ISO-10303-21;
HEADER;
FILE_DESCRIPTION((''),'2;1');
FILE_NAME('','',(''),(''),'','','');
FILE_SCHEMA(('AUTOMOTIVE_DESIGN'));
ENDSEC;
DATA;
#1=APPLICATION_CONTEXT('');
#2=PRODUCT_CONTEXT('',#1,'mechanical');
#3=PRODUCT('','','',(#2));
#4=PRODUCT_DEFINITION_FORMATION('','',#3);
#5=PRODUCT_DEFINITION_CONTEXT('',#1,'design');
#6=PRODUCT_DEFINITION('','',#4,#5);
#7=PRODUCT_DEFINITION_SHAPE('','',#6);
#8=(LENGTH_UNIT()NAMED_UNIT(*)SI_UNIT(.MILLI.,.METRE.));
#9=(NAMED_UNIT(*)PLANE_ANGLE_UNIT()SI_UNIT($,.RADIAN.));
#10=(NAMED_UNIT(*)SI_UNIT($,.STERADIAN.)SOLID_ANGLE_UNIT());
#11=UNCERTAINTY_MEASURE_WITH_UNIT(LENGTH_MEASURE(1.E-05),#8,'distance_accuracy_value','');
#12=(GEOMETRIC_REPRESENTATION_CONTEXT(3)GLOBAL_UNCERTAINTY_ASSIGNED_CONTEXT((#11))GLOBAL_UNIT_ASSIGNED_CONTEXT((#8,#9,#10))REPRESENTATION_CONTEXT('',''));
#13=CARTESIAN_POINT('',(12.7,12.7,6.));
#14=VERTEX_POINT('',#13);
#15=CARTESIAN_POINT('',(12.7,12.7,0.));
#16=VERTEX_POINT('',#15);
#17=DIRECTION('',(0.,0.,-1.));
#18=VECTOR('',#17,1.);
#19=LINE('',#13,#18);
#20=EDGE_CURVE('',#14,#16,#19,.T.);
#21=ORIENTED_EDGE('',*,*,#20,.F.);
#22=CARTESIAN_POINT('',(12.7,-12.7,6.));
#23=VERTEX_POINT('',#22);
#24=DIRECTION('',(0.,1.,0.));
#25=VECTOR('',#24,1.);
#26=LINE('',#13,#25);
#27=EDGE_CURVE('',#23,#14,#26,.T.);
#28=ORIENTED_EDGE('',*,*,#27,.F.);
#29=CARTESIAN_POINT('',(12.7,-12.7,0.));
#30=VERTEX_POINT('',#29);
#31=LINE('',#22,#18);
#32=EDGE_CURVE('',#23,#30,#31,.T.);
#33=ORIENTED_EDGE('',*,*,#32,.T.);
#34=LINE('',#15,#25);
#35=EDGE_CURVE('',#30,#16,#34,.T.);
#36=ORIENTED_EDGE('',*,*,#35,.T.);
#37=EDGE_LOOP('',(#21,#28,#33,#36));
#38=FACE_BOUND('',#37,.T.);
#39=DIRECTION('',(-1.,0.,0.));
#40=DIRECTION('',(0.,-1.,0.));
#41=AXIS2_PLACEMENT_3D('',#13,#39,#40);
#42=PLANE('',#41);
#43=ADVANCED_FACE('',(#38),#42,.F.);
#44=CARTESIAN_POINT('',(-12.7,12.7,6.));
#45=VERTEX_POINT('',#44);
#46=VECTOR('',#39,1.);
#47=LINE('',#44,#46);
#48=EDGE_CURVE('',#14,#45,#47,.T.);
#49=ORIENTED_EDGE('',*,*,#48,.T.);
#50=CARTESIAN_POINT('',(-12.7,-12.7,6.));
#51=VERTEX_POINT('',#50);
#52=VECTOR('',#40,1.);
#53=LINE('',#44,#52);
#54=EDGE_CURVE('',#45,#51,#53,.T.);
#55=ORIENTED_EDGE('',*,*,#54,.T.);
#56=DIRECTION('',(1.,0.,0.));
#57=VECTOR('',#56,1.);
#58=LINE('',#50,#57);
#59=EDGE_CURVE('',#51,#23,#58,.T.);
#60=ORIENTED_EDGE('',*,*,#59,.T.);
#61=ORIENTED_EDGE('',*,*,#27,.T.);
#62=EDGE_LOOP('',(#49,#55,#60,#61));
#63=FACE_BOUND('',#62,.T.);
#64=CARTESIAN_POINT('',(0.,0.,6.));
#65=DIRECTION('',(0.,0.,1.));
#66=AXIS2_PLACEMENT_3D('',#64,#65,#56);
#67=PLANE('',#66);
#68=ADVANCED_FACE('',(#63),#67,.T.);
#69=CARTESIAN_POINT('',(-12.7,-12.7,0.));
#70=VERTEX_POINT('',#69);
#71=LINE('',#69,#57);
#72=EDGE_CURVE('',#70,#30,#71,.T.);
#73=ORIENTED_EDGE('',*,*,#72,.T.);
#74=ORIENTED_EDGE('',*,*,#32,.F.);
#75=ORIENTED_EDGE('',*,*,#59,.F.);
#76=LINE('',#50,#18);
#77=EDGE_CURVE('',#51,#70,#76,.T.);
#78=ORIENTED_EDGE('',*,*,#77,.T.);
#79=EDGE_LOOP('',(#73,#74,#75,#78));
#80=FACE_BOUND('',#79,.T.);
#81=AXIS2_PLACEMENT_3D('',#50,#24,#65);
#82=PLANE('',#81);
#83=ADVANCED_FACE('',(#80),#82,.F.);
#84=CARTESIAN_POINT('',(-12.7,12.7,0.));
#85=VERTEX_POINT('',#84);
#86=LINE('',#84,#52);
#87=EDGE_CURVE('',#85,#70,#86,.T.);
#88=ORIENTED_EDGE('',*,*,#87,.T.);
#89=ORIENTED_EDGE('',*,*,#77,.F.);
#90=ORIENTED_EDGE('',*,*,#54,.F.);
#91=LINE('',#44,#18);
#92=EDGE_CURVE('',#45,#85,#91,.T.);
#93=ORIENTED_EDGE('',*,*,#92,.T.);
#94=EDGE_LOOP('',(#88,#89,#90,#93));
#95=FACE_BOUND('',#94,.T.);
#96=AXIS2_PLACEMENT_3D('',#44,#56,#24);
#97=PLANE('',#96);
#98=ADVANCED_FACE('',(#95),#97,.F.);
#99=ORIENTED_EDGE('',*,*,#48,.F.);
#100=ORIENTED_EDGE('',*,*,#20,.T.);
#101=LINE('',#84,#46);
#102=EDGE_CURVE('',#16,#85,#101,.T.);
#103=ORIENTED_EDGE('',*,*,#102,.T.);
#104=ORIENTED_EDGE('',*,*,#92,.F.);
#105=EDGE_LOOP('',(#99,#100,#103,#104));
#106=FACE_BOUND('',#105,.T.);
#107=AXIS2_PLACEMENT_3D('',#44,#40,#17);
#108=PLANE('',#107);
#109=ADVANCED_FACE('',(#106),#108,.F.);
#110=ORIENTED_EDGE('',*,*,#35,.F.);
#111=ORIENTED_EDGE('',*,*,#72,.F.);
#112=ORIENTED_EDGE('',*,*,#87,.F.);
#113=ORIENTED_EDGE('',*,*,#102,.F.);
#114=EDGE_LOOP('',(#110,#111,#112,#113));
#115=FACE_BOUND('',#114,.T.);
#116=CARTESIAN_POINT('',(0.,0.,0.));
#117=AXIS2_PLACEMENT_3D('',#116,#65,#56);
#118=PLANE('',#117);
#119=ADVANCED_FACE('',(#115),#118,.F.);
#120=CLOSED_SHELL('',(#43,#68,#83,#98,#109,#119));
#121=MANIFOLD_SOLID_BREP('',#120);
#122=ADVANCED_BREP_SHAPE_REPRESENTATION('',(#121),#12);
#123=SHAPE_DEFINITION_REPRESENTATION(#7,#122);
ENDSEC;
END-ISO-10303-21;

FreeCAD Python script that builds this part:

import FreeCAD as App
import Part
import Sketcher
from FreeCAD import Vector
Q = App.Units.Quantity


def add_polygon(sketch, points):
    """Adds a closed chain of lines whose ends are joined by coincident constraints."""
    first, n = sketch.GeometryCount, len(points)
    for a, b in zip(points, points[1:] + points[:1]):
        sketch.addGeometry(Part.LineSegment(App.Vector(*a, 0), App.Vector(*b, 0)), False)
    for i in range(n):
        sketch.addConstraint(Sketcher.Constraint("Coincident", first + i, 2, first + (i + 1) % n, 1))

doc = App.newDocument("Part")
body = doc.addObject("PartDesign::Body", "Body")

# Sketch on XY plane
sketch1 = body.newObject("Sketcher::SketchObject", "Sketch")
sketch1.AttachmentSupport = (doc.getObject("XY_Plane"), [""])
sketch1.MapMode = "FlatFace"
add_polygon(sketch1, [(-13, 13), (-13, -13), (13, -13), (13, 13)])  # lines 0-3
sketch1.addConstraint([
    Sketcher.Constraint("Vertical", 0),
    Sketcher.Constraint("Horizontal", 1),
    Sketcher.Constraint("Vertical", 2),
    Sketcher.Constraint("Horizontal", 3),
    Sketcher.Constraint("Symmetric", 0, 2, 2, 2, -1, 1),
    Sketcher.Constraint("Equal", 3, 0),
    Sketcher.Constraint("DistanceX", 1, 1, 1, 2, Q("25.4 mm")),
])
pad1 = body.newObject("PartDesign::Pad", "Pad")
pad1.Profile = sketch1
pad1.Length = 6

doc.recompute()
